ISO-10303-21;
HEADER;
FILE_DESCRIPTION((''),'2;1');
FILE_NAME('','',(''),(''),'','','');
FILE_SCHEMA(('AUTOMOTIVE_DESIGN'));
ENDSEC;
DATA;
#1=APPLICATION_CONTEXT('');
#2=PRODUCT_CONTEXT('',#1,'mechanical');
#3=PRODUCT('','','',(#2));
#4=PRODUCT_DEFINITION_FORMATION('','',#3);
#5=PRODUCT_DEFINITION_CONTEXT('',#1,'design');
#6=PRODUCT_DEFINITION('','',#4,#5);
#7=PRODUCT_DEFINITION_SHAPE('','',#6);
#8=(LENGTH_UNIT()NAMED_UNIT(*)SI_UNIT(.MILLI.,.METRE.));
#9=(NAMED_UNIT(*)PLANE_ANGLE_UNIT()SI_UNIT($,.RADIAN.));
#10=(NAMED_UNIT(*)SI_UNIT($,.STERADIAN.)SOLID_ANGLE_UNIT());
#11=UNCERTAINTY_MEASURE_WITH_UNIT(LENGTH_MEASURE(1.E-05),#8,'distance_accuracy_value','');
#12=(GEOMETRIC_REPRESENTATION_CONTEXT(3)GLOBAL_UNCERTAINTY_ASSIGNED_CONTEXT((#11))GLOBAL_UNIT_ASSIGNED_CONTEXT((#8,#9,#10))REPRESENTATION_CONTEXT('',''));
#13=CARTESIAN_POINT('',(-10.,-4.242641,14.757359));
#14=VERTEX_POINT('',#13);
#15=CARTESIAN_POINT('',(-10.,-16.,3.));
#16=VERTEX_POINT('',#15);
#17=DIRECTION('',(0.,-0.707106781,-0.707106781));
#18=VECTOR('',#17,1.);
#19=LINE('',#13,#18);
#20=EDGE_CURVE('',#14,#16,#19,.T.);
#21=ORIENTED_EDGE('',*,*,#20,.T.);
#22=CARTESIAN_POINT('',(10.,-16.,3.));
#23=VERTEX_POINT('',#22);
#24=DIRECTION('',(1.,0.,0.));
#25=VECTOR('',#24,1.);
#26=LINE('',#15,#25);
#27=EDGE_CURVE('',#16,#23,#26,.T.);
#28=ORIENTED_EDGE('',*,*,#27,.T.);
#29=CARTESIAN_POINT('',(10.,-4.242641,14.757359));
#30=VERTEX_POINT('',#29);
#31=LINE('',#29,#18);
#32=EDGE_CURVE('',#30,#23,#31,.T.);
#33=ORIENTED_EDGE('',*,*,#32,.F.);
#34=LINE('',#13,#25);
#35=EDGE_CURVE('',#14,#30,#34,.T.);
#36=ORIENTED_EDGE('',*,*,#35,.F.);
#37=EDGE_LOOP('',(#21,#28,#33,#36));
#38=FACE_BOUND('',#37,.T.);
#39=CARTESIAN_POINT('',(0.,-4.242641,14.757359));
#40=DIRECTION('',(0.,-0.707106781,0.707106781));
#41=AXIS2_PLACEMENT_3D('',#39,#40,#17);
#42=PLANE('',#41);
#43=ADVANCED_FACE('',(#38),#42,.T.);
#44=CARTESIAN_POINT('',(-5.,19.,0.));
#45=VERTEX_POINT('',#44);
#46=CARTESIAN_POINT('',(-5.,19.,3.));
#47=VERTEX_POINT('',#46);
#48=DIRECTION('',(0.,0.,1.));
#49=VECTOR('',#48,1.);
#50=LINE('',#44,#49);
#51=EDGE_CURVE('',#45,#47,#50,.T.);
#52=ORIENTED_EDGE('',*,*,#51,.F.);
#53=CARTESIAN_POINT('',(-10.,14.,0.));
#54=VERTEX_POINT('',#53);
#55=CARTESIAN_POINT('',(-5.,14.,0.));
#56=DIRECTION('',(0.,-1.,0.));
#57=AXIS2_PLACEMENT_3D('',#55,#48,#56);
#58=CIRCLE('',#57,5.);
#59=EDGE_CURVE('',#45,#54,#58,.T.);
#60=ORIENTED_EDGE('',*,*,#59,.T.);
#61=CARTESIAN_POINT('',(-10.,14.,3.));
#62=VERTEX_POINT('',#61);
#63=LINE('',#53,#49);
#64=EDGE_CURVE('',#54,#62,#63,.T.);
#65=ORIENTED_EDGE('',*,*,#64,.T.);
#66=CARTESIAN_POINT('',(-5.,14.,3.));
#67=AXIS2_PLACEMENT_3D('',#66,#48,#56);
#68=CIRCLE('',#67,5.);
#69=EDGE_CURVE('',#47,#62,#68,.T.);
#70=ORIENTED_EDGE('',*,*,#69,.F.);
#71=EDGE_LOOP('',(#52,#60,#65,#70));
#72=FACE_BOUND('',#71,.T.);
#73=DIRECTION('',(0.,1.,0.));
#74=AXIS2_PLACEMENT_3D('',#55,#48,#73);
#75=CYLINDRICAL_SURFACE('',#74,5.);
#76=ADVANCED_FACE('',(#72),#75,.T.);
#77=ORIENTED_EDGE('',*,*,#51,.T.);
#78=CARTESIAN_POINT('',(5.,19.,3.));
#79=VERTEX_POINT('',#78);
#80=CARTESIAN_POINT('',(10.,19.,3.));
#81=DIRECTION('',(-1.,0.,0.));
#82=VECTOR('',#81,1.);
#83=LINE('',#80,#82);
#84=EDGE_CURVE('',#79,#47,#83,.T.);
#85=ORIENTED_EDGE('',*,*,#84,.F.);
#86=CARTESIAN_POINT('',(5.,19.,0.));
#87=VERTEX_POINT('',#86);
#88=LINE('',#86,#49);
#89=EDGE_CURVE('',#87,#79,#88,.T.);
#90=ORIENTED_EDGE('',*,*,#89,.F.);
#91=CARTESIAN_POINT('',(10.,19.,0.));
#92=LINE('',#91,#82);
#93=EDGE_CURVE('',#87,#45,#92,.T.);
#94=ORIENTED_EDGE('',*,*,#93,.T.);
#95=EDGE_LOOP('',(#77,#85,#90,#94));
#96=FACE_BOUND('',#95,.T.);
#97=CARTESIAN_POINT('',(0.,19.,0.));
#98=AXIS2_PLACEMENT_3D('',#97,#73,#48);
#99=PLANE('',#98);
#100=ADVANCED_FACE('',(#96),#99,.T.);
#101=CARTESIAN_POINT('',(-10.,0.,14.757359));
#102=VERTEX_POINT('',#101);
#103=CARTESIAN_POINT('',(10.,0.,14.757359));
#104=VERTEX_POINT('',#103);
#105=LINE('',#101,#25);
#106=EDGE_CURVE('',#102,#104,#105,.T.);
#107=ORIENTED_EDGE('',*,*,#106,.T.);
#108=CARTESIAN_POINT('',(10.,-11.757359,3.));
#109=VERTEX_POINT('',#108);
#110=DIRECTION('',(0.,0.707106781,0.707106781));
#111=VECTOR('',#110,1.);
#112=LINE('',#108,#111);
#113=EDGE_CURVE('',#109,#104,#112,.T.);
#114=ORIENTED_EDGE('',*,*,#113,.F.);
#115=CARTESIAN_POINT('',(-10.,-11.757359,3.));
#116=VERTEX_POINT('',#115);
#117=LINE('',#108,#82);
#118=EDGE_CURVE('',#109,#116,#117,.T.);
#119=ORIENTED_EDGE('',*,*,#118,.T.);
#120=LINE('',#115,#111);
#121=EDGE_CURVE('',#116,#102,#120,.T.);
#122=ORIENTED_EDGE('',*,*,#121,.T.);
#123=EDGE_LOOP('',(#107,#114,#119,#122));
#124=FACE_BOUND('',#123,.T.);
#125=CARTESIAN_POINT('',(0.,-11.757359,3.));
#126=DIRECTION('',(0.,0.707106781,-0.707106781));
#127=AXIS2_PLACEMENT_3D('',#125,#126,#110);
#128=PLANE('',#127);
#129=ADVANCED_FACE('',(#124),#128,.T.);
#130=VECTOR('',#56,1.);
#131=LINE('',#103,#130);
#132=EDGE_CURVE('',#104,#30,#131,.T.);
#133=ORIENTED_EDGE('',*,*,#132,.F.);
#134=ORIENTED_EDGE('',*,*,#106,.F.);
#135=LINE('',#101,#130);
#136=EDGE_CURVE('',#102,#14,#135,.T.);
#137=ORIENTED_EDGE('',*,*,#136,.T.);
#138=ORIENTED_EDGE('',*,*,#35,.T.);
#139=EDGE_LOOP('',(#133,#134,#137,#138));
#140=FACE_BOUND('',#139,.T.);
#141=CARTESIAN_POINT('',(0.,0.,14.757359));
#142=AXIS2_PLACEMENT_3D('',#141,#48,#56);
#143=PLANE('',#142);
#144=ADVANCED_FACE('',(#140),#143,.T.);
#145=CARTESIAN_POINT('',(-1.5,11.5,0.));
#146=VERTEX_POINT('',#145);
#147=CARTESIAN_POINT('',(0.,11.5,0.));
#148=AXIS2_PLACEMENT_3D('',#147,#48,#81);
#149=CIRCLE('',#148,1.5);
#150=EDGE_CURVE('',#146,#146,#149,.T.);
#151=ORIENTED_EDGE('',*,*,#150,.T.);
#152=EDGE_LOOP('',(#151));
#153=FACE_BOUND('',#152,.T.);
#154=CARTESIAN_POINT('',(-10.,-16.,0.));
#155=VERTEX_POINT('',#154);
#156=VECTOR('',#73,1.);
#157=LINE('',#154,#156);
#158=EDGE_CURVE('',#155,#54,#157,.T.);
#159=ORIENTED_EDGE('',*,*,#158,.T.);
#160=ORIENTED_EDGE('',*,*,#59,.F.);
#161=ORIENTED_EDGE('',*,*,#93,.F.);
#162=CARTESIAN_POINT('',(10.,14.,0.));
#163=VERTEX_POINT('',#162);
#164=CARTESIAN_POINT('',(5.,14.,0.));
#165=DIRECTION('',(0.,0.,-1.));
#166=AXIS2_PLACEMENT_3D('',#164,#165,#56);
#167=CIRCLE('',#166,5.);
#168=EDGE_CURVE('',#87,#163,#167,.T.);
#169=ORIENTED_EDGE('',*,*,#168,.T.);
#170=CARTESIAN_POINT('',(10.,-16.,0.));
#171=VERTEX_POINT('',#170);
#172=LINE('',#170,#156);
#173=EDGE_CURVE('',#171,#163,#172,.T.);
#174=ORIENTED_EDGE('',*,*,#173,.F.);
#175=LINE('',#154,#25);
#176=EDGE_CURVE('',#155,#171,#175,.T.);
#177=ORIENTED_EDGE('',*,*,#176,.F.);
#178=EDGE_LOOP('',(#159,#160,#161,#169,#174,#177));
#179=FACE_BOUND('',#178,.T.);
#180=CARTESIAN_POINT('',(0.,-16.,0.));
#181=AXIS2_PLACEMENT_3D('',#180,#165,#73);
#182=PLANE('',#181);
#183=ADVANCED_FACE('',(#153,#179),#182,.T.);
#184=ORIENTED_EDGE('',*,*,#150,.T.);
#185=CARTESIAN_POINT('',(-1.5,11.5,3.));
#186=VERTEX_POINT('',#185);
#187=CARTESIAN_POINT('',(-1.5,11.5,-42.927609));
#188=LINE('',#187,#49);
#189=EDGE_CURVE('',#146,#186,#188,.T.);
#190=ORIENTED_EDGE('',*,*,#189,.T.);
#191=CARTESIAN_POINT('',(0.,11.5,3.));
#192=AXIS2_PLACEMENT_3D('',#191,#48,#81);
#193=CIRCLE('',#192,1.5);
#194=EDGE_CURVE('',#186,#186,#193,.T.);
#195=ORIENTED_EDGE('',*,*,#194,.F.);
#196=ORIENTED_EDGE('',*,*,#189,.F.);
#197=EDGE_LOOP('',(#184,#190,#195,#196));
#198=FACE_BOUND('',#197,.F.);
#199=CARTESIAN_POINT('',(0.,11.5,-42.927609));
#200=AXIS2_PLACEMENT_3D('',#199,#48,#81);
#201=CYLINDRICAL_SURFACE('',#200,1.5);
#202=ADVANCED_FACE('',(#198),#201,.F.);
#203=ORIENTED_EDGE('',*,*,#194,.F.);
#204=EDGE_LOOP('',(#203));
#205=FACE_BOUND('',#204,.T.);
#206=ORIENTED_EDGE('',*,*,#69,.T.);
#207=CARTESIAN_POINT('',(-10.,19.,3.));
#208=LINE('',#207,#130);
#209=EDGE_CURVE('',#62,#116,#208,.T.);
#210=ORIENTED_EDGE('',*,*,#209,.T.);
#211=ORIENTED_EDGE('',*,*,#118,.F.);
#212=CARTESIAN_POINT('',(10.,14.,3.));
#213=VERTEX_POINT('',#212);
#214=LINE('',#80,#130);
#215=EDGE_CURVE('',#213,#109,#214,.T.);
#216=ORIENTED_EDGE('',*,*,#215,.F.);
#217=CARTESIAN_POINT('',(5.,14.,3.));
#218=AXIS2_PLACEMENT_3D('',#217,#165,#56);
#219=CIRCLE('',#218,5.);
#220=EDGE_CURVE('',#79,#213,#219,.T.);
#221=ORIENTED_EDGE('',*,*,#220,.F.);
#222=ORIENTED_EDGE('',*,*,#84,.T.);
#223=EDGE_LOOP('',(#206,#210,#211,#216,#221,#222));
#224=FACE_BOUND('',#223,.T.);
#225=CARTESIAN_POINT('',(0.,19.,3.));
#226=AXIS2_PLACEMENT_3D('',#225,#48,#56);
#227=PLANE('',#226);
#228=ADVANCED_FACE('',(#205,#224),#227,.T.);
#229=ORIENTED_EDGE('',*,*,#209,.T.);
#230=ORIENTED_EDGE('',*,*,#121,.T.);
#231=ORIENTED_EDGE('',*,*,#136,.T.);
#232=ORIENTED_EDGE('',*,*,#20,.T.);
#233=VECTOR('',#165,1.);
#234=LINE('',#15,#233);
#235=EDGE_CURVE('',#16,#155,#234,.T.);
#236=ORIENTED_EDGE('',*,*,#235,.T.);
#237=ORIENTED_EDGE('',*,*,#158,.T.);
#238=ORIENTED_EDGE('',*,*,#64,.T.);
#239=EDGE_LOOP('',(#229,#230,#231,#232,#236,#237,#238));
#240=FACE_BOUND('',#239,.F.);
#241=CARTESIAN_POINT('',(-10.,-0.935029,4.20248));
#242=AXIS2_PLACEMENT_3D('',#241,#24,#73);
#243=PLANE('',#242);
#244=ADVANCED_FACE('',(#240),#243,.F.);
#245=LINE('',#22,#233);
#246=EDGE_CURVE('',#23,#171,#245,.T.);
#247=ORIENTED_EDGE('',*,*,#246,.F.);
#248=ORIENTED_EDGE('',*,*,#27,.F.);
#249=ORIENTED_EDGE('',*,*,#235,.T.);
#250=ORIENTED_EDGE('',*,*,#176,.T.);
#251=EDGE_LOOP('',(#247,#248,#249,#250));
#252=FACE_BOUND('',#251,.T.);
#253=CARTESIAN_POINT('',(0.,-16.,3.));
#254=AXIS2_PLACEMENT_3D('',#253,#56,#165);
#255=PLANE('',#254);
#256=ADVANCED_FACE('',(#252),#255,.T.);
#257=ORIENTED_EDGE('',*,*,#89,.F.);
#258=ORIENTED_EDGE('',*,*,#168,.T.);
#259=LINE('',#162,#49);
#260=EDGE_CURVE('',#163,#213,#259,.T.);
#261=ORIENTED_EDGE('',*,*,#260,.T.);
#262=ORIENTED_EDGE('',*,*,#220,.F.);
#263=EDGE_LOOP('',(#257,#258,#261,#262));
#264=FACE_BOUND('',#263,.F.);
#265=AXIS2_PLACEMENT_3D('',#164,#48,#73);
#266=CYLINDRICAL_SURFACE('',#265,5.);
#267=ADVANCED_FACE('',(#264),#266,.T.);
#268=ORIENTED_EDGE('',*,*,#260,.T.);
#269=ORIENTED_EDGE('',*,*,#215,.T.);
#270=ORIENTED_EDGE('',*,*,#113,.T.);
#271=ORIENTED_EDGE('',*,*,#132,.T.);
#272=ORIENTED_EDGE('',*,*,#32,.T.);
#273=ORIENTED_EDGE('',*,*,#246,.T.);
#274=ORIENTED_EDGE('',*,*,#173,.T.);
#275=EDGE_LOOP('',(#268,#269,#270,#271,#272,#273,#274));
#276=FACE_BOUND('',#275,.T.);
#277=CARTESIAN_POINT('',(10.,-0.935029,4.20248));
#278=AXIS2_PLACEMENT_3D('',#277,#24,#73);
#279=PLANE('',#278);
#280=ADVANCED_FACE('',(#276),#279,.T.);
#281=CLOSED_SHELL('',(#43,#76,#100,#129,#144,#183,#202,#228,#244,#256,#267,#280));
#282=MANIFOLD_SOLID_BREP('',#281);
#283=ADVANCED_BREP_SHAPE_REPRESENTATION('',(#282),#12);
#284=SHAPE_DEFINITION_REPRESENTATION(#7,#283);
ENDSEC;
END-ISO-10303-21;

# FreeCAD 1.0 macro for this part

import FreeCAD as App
import Part
import Sketcher

V = App.Vector
Q = App.Units.Quantity


def edges_at(feature, points):
    """Names of the edges that pass closest to the given points."""
    edges = feature.Shape.Edges
    near = lambda p: min(range(len(edges)), key=lambda i: edges[i].distToShape(Part.Vertex(*p))[0])
    return sorted({f"Edge{near(p) + 1}" for p in points})

doc = App.newDocument("Part")
body = doc.addObject("PartDesign::Body", "Body")

sketch1 = body.newObject("Sketcher::SketchObject", "Sketch")
sketch1.AttachmentSupport = (doc.getObject("YZ_Plane"), [""])
sketch1.MapMode = "FlatFace"
sketch1.addGeometry([
    Part.LineSegment(V(-11.8, 3, 0), V(0, 14.8, 0)),
    Part.LineSegment(V(0, 14.8, 0), V(-4.2, 14.8, 0)),
    Part.LineSegment(V(-4.2, 14.8, 0), V(-16, 3, 0)),
    Part.LineSegment(V(-16, 3, 0), V(-16, 0, 0)),
    Part.LineSegment(V(-16, 0, 0), V(19, 0, 0)),
    Part.LineSegment(V(19, 0, 0), V(19, 3, 0)),
    Part.LineSegment(V(19, 3, 0), V(-11.8, 3, 0)),
], False)
sketch1.addConstraint([
    Sketcher.Constraint("Coincident", 0, 2, 1, 1),
    Sketcher.Constraint("Coincident", 1, 2, 2, 1),
    Sketcher.Constraint("Coincident", 2, 2, 3, 1),
    Sketcher.Constraint("Coincident", 3, 2, 4, 1),
    Sketcher.Constraint("Coincident", 4, 2, 5, 1),
    Sketcher.Constraint("Coincident", 5, 2, 6, 1),
    Sketcher.Constraint("Coincident", 6, 2, 0, 1),
    Sketcher.Constraint("Horizontal", 1),
    Sketcher.Constraint("Vertical", 3),
    Sketcher.Constraint("Horizontal", 4),
    Sketcher.Constraint("Vertical", 5),
    Sketcher.Constraint("Horizontal", 6),
    Sketcher.Constraint("PointOnObject", 0, 2, -2),
    Sketcher.Constraint("PointOnObject", 3, 2, -1),
    Sketcher.Constraint("Parallel", 0, 2),
    Sketcher.Constraint("Horizontal", 2, 2, 5, 2),
    Sketcher.Constraint("DistanceX", 4, 1, 4, 2, Q("35 mm")),
    Sketcher.Constraint("DistanceY", 3, 2, 3, 1, Q("3 mm")),
    Sketcher.Constraint("Angle", 0, Q("45 deg")),
    Sketcher.Constraint("DistanceX", 2, 2, -1, 1, Q("16 mm")),
    Sketcher.Constraint("DistanceX", 1, 2, 1, 1, Q("4.242641 mm")),
])
pad1 = body.newObject("PartDesign::Pad", "Pad")
pad1.Profile = sketch1
pad1.Length = 20
pad1.Midplane = True
doc.recompute()

fillet = body.newObject("PartDesign::Fillet", "Fillet")
fillet.Base = (pad1, edges_at(pad1, [(10, 19, 1.5), (-10, 19, 1.5)]))
fillet.Radius = 5

sketch2 = body.newObject("Sketcher::SketchObject", "Sketch001")
sketch2.AttachmentSupport = (doc.getObject("XY_Plane"), [""])
sketch2.MapMode = "FlatFace"
sketch2.addGeometry(Part.Circle(V(0, 11.5, 0), V(0, 0, 1), 1.5), False)
sketch2.addConstraint([
    Sketcher.Constraint("PointOnObject", 0, 3, -2),
    Sketcher.Constraint("Diameter", 0, Q("3 mm")),
    Sketcher.Constraint("DistanceY", -1, 1, 0, 3, Q("11.5 mm")),
])
doc.recompute()
hole = body.newObject("PartDesign::Hole", "Hole")
hole.Profile = sketch2
hole.ThreadType = "None"
hole.Diameter = 3
hole.DepthType = "ThroughAll"
hole.Reversed = True

doc.recompute()
